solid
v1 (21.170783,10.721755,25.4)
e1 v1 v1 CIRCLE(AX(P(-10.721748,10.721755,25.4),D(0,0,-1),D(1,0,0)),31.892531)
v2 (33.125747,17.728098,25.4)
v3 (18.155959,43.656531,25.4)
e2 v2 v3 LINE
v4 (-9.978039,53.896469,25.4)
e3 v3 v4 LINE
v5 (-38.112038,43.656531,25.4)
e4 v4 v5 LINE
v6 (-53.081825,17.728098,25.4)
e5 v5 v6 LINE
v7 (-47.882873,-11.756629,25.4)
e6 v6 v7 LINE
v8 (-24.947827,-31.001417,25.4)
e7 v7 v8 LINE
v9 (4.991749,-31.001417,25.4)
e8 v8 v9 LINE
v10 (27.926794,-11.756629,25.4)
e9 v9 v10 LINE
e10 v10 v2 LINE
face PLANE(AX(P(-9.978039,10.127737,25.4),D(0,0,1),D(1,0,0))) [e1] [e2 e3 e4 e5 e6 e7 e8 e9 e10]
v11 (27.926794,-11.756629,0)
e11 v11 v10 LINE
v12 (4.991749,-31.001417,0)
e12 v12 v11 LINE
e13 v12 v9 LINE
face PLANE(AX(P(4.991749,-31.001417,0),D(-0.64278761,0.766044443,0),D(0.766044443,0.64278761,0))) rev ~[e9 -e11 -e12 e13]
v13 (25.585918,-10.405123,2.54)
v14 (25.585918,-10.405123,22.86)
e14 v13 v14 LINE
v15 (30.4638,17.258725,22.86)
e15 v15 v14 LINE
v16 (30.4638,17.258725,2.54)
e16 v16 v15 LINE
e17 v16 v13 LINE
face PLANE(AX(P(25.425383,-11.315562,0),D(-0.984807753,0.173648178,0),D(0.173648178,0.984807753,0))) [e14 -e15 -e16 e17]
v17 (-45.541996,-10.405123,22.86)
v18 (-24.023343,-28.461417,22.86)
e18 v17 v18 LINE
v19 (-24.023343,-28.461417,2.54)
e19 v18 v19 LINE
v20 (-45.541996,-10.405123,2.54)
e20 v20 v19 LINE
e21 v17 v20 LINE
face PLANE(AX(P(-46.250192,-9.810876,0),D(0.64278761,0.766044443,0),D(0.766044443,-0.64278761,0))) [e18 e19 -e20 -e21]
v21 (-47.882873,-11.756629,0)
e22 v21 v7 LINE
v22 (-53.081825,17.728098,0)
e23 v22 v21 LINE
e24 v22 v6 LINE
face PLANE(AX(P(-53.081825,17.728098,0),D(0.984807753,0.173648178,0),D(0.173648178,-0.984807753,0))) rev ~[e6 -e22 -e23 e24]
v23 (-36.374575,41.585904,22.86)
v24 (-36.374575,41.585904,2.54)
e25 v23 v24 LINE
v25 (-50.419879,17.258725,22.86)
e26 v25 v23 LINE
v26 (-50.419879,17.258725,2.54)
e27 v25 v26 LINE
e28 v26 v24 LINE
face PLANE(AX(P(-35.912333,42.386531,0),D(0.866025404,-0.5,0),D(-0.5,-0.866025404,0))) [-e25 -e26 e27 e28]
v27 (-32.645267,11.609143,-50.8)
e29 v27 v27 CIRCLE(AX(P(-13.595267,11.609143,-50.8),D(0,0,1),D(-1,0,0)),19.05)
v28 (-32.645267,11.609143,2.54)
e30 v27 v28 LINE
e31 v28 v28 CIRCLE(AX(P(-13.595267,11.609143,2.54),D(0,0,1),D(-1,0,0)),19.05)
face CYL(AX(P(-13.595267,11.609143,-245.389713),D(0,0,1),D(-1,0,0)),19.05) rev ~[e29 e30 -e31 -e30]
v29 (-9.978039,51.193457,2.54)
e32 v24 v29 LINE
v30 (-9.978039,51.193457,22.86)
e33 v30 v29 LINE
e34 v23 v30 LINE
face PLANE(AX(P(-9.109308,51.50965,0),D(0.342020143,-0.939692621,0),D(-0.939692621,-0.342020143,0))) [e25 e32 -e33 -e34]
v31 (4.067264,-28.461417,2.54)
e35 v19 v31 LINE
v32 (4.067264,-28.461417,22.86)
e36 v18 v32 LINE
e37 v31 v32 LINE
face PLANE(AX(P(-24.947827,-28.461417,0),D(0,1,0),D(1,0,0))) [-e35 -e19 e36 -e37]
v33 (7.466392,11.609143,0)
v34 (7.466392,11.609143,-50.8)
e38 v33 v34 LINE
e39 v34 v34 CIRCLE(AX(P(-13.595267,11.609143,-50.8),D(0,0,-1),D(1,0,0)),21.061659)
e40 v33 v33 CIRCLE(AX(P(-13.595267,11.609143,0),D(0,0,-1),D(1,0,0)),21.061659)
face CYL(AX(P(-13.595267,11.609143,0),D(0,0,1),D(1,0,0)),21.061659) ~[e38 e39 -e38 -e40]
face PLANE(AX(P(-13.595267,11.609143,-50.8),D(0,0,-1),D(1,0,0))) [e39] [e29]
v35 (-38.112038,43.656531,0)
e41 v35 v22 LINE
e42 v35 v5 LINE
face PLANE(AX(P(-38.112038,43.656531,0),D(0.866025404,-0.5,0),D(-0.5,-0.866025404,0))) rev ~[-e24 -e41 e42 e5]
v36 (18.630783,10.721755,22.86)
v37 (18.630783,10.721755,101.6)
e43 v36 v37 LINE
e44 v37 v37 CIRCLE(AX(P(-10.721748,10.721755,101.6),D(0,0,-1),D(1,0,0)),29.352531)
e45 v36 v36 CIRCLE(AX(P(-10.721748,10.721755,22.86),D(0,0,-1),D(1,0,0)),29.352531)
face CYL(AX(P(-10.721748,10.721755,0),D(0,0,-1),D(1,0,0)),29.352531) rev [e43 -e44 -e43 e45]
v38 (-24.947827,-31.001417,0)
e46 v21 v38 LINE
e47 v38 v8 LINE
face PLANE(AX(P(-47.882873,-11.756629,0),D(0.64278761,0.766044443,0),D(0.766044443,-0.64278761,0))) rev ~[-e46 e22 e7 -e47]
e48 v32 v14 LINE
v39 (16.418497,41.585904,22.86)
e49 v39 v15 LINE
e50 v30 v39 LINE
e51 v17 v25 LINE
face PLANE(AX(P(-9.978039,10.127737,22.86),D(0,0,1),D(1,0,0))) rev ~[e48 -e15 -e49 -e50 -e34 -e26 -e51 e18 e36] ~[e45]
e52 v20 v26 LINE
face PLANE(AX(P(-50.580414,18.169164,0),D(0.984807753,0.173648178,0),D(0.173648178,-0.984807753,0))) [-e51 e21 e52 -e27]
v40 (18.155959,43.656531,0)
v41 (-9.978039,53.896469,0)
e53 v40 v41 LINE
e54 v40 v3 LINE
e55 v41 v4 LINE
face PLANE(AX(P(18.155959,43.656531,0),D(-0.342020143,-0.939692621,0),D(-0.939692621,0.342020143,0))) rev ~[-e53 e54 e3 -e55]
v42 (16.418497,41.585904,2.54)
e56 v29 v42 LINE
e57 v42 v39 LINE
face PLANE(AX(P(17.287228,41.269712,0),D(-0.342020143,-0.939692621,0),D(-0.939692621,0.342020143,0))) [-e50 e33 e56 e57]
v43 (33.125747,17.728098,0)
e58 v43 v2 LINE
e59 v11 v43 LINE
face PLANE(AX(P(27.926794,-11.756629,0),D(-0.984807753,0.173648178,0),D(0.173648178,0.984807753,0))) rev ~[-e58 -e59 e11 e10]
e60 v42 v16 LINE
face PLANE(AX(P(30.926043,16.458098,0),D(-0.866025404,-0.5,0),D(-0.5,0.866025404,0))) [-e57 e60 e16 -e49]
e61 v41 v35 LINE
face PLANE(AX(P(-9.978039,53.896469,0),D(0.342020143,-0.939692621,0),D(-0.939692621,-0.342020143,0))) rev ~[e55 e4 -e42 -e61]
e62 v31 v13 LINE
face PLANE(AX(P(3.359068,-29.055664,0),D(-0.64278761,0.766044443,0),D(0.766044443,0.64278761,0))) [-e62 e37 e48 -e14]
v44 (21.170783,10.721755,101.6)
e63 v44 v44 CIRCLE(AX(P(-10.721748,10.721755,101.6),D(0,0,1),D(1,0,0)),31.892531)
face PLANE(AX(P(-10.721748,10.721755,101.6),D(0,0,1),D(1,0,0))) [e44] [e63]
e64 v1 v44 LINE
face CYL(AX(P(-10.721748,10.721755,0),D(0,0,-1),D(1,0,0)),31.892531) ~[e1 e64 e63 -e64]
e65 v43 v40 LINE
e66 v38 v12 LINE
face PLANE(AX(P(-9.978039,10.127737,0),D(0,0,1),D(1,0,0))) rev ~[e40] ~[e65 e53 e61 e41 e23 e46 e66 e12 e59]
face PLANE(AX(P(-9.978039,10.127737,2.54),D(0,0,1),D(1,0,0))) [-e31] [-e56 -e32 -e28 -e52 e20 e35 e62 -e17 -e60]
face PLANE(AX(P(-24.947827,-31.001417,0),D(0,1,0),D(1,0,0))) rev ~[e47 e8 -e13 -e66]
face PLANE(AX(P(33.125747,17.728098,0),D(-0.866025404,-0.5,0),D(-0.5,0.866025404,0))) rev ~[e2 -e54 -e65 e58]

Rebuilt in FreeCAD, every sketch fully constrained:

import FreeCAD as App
import Part
import Sketcher
from FreeCAD import Vector
Q = App.Units.Quantity


def faces_at(feature, points):
    """Names of the faces that lie closest to the given points."""
    faces = feature.Shape.Faces
    near = lambda p: min(range(len(faces)), key=lambda i: faces[i].distToShape(Part.Vertex(*p))[0])
    return sorted({f"Face{near(p) + 1}" for p in points})

doc = App.newDocument("Part")
params = doc.addObject("Spreadsheet::Sheet", "Params")
for row, (alias, value) in enumerate([
    ("pad1_length", "4 in"),
    ("pad2_length", "1 in"),
    ("thickness_wall", "0.1 in"),
    ("pad3_length", "2 in"),
    ("sketch4_diameter", "1.5 in"),
    ("hole_diameter", "1.5 in"),
], start=1):
    params.set(f"A{row}", alias)
    params.set(f"B{row}", "=" + value)
    params.setAlias(f"B{row}", alias)

body = doc.addObject("PartDesign::Body", "Body")

# Sketch on XY plane
sketch1 = body.newObject("Sketcher::SketchObject", "Sketch")
sketch1.AttachmentSupport = (doc.getObject("XY_Plane"), [""])
sketch1.MapMode = "FlatFace"
sketch1.addGeometry(Part.Circle(Vector(-11, 11, 0), Vector(0, 0, 1), 32), False)
sketch1.addConstraint([
    Sketcher.Constraint("Diameter", 0, Q("63.785061 mm")),
    Sketcher.Constraint("DistanceX", 0, 3, -1, 1, Q("10.721748 mm")),
    Sketcher.Constraint("DistanceY", -1, 1, 0, 3, Q("10.721755 mm")),
])
pad1 = body.newObject("PartDesign::Pad", "Pad")
pad1.Profile = sketch1
pad1.setExpression("Length", "Params.pad1_length")

# Sketch on XY plane
sketch2 = body.newObject("Sketcher::SketchObject", "Sketch001")
sketch2.AttachmentSupport = (doc.getObject("XY_Plane"), [""])
sketch2.MapMode = "FlatFace"
sketch2.addGeometry([
    Part.LineSegment(Vector(-25, -31, 0), Vector(5, -31, 0)),  # 0
    Part.LineSegment(Vector(5, -31, 0), Vector(28, -12, 0)),  # 1
    Part.LineSegment(Vector(28, -12, 0), Vector(33, 18, 0)),  # 2
    Part.LineSegment(Vector(33, 18, 0), Vector(18, 44, 0)),  # 3
    Part.LineSegment(Vector(18, 44, 0), Vector(-10, 54, 0)),  # 4
    Part.LineSegment(Vector(-10, 54, 0), Vector(-38, 44, 0)),  # 5
    Part.LineSegment(Vector(-38, 44, 0), Vector(-53, 18, 0)),  # 6
    Part.LineSegment(Vector(-53, 18, 0), Vector(-48, -12, 0)),  # 7
    Part.LineSegment(Vector(-48, -12, 0), Vector(-25, -31, 0)),  # 8
], False)
sketch2.addConstraint([
    Sketcher.Constraint("Coincident", 0, 2, 1, 1),
    Sketcher.Constraint("Coincident", 1, 2, 2, 1),
    Sketcher.Constraint("Coincident", 2, 2, 3, 1),
    Sketcher.Constraint("Coincident", 3, 2, 4, 1),
    Sketcher.Constraint("Coincident", 4, 2, 5, 1),
    Sketcher.Constraint("Coincident", 5, 2, 6, 1),
    Sketcher.Constraint("Coincident", 6, 2, 7, 1),
    Sketcher.Constraint("Coincident", 7, 2, 8, 1),
    Sketcher.Constraint("Coincident", 8, 2, 0, 1),
    Sketcher.Constraint("Horizontal", 0),
    Sketcher.Constraint("Horizontal", 3, 2, 5, 2),
    Sketcher.Constraint("Horizontal", 2, 2, 6, 2),
    Sketcher.Constraint("Horizontal", 1, 2, 7, 2),
    Sketcher.Constraint("Equal", 1, 2),
    Sketcher.Constraint("Equal", 2, 3),
    Sketcher.Constraint("Equal", 3, 4),
    Sketcher.Constraint("Equal", 4, 5),
    Sketcher.Constraint("Equal", 5, 6),
    Sketcher.Constraint("Equal", 6, 7),
    Sketcher.Constraint("Equal", 7, 8),
    Sketcher.Constraint("Angle", 1, Q("40 deg")),
    Sketcher.Constraint("Angle", 2, Q("80 deg")),
    Sketcher.Constraint("Angle", 3, Q("120 deg")),
    Sketcher.Constraint("Angle", 4, Q("160 deg")),
    Sketcher.Constraint("DistanceX", 0, 2, 2, 2, Q("28.133998 mm")),
    Sketcher.Constraint("DistanceX", -1, 1, 0, 2, Q("4.991749 mm")),
    Sketcher.Constraint("DistanceY", 1, 2, -1, 1, Q("11.756629 mm")),
])
pad2 = body.newObject("PartDesign::Pad", "Pad001")
pad2.Profile = sketch2
pad2.setExpression("Length", "Params.pad2_length")
doc.recompute()

thickness = body.newObject("PartDesign::Thickness", "Thickness")
thickness.Base = (pad2, faces_at(pad2, [(-10.722, 10.722, 101.6)]))
thickness.setExpression("Value", "Params.thickness_wall")
thickness.Reversed = True
thickness.Join = "Intersection"

# Sketch on XY plane
sketch3 = body.newObject("Sketcher::SketchObject", "Sketch002")
sketch3.AttachmentSupport = (doc.getObject("XY_Plane"), [""])
sketch3.MapMode = "FlatFace"
sketch3.addGeometry(Part.Circle(Vector(-14, 12, 0), Vector(0, 0, 1), 21), False)
sketch3.addConstraint([
    Sketcher.Constraint("Diameter", 0, Q("42.123318 mm")),
    Sketcher.Constraint("DistanceX", 0, 3, -1, 1, Q("13.595267 mm")),
    Sketcher.Constraint("DistanceY", -1, 1, 0, 3, Q("11.609143 mm")),
])
pad3 = body.newObject("PartDesign::Pad", "Pad002")
pad3.Profile = sketch3
pad3.setExpression("Length", "Params.pad3_length")
pad3.Reversed = True

# Sketch on XY plane
sketch4 = body.newObject("Sketcher::SketchObject", "Sketch003")
sketch4.AttachmentSupport = (doc.getObject("XY_Plane"), [""])
sketch4.MapMode = "FlatFace"
sketch4.AttachmentOffset = App.Placement(Vector(0, 0, -2 * 25.4), App.Rotation())
sketch4.addGeometry(Part.Circle(Vector(-14, 12, 0), Vector(0, 0, 1), 19), False)
sketch4.addConstraint([
    Sketcher.Constraint("Diameter", 0, Q("1.5 in")),
    Sketcher.Constraint("DistanceX", 0, 3, -1, 1, Q("13.595267 mm")),
    Sketcher.Constraint("DistanceY", -1, 1, 0, 3, Q("11.609143 mm")),
])
sketch4.setExpression("Constraints[0]", "Params.sketch4_diameter")
doc.recompute()
hole = body.newObject("PartDesign::Hole", "Hole")
hole.Profile = sketch4
hole.ThreadType = "None"
hole.setExpression("Diameter", "Params.hole_diameter")
hole.DepthType = "ThroughAll"
hole.Reversed = True

doc.recompute()
